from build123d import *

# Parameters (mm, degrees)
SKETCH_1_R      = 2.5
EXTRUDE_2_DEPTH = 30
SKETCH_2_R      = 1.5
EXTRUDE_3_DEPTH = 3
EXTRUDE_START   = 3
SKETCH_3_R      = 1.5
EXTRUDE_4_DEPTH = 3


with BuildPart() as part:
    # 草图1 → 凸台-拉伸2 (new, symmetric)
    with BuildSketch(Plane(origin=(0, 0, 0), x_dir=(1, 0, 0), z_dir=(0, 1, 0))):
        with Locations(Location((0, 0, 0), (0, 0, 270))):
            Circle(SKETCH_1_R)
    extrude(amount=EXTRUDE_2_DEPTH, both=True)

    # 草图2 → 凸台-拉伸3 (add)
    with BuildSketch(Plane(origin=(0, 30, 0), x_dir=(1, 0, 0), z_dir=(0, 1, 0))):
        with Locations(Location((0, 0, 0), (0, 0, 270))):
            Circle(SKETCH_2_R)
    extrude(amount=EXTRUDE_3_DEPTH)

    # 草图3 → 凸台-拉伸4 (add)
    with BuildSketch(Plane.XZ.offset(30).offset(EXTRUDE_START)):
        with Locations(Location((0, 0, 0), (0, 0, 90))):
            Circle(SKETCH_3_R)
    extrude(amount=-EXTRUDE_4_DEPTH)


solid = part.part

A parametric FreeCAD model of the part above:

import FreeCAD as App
import Part
import Sketcher
from FreeCAD import Vector

doc = App.newDocument("Part")
body = doc.addObject("PartDesign::Body", "Body")

# Sketch on XZ plane
sketch1 = body.newObject("Sketcher::SketchObject", "Sketch")
sketch1.AttachmentSupport = (doc.getObject("XZ_Plane"), [""])
sketch1.MapMode = "FlatFace"
sketch1.addGeometry(Part.Circle(Vector(0, 0, 0), Vector(0, 0, 1), 2.5), False)
sketch1.addConstraint(Sketcher.Constraint("Coincident", 0, 3, -1, 1))
sketch1.addConstraint(Sketcher.Constraint("Diameter", 0, 5.0))
pad1 = body.newObject("PartDesign::Pad", "Pad")
pad1.Profile = sketch1
pad1.Length = 60
pad1.Midplane = True

# Sketch on XZ plane
sketch2 = body.newObject("Sketcher::SketchObject", "Sketch001")
sketch2.AttachmentSupport = (doc.getObject("XZ_Plane"), [""])
sketch2.MapMode = "FlatFace"
sketch2.AttachmentOffset = App.Placement(Vector(0, 0, -30), App.Rotation())
sketch2.addGeometry(Part.Circle(Vector(0, 0, 0), Vector(0, 0, 1), 1.5), False)
sketch2.addConstraint(Sketcher.Constraint("Coincident", 0, 3, -1, 1))
sketch2.addConstraint(Sketcher.Constraint("Diameter", 0, 3.0))
pad2 = body.newObject("PartDesign::Pad", "Pad001")
pad2.Profile = sketch2
pad2.Length = 3
pad2.Reversed = True

# Sketch on XZ plane
sketch3 = body.newObject("Sketcher::SketchObject", "Sketch002")
sketch3.AttachmentSupport = (doc.getObject("XZ_Plane"), [""])
sketch3.MapMode = "FlatFace"
sketch3.AttachmentOffset = App.Placement(Vector(0, 0, 33), App.Rotation())
sketch3.addGeometry(Part.Circle(Vector(0, 0, 0), Vector(0, 0, 1), 1.5), False)
sketch3.addConstraint(Sketcher.Constraint("Coincident", 0, 3, -1, 1))
sketch3.addConstraint(Sketcher.Constraint("Diameter", 0, 3.0))
pad3 = body.newObject("PartDesign::Pad", "Pad002")
pad3.Profile = sketch3
pad3.Length = 3
pad3.Reversed = True

doc.recompute()
